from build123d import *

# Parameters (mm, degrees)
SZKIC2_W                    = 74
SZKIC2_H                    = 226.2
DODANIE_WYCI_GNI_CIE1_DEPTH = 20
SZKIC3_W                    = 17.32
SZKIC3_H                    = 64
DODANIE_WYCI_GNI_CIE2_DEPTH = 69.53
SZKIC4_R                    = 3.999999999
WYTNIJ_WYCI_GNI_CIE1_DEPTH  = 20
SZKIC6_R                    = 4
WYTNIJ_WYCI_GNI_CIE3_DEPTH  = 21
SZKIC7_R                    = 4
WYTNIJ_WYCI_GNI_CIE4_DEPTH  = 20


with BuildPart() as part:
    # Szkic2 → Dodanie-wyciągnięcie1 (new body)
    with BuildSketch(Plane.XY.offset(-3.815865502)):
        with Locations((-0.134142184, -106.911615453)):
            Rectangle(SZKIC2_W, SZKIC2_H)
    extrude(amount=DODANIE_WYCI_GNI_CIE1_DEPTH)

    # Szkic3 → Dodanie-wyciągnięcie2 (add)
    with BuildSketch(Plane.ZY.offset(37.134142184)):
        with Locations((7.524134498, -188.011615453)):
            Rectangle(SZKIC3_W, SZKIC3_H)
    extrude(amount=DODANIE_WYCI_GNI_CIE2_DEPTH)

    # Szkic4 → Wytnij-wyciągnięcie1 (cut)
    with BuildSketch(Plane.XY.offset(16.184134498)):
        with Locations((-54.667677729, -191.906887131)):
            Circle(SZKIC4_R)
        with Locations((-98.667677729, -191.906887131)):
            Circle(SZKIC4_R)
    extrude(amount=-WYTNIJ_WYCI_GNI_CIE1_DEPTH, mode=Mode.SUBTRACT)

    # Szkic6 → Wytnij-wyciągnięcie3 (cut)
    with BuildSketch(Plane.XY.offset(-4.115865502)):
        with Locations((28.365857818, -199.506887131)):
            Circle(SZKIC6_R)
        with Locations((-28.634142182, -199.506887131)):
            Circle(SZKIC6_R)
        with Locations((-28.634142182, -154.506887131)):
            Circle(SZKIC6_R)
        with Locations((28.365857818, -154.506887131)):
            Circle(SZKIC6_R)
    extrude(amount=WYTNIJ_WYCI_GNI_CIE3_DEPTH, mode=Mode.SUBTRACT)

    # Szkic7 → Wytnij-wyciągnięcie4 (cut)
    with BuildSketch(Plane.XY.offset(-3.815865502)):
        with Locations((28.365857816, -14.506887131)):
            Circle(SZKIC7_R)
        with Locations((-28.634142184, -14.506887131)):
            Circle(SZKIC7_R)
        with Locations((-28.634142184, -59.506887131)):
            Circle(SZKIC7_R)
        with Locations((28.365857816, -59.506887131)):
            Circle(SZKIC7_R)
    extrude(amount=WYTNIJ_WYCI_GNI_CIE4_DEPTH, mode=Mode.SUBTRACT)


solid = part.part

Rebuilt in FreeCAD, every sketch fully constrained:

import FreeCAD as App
import Part
import Sketcher
Q = App.Units.Quantity

doc = App.newDocument("Part")
body = doc.addObject("PartDesign::Body", "Body")

# Sketch on XY plane
sketch1 = doc.addObject("Sketcher::SketchObject", "Sketch")
body.addObject(sketch1)
sketch1.AttachmentSupport = (doc.XY_Plane, [""])
sketch1.MapMode = "FlatFace"
sketch1.AttachmentOffset = App.Placement(App.Vector(0, 0, -3.815866), App.Rotation())
sketch1.addGeometry([
    Part.LineSegment(App.Vector(-37.134142, 6.188385, 0), App.Vector(-37.134142, -220.011615, 0)),
    Part.LineSegment(App.Vector(-37.134142, -220.011615, 0), App.Vector(36.865858, -220.011615, 0)),
    Part.LineSegment(App.Vector(36.865858, -220.011615, 0), App.Vector(36.865858, 6.188385, 0)),
    Part.LineSegment(App.Vector(36.865858, 6.188385, 0), App.Vector(-37.134142, 6.188385, 0)),
], False)
sketch1.addConstraint([
    Sketcher.Constraint("Coincident", 0, 2, 1, 1),
    Sketcher.Constraint("Coincident", 1, 2, 2, 1),
    Sketcher.Constraint("Coincident", 2, 2, 3, 1),
    Sketcher.Constraint("Coincident", 3, 2, 0, 1),
    Sketcher.Constraint("Vertical", 0),
    Sketcher.Constraint("Horizontal", 1),
    Sketcher.Constraint("Vertical", 2),
    Sketcher.Constraint("Horizontal", 3),
    Sketcher.Constraint("DistanceX", 1, 1, 1, 2, Q("74 mm")),
    Sketcher.Constraint("DistanceY", 0, 2, 0, 1, Q("226.2 mm")),
    Sketcher.Constraint("DistanceX", 0, 2, -1, 1, Q("37.134142 mm")),
    Sketcher.Constraint("DistanceY", 0, 2, -1, 1, Q("220.011615 mm")),
])
pad1 = doc.addObject("PartDesign::Pad", "Pad")
body.addObject(pad1)
pad1.Profile = sketch1
pad1.Length = 20

# Sketch on YZ plane
sketch2 = doc.addObject("Sketcher::SketchObject", "Sketch001")
body.addObject(sketch2)
sketch2.AttachmentSupport = (doc.YZ_Plane, [""])
sketch2.MapMode = "FlatFace"
sketch2.AttachmentOffset = App.Placement(App.Vector(0, 0, -37.134142), App.Rotation())
sketch2.addGeometry([
    Part.LineSegment(App.Vector(-156.011615, -1.135866, 0), App.Vector(-220.011615, -1.135866, 0)),
    Part.LineSegment(App.Vector(-220.011615, -1.135866, 0), App.Vector(-220.011615, 16.184134, 0)),
    Part.LineSegment(App.Vector(-220.011615, 16.184134, 0), App.Vector(-156.011615, 16.184134, 0)),
    Part.LineSegment(App.Vector(-156.011615, 16.184134, 0), App.Vector(-156.011615, -1.135866, 0)),
], False)
sketch2.addConstraint([
    Sketcher.Constraint("Coincident", 0, 2, 1, 1),
    Sketcher.Constraint("Coincident", 1, 2, 2, 1),
    Sketcher.Constraint("Coincident", 2, 2, 3, 1),
    Sketcher.Constraint("Coincident", 3, 2, 0, 1),
    Sketcher.Constraint("Horizontal", 0),
    Sketcher.Constraint("Vertical", 1),
    Sketcher.Constraint("Horizontal", 2),
    Sketcher.Constraint("Vertical", 3),
    Sketcher.Constraint("DistanceX", 0, 2, 0, 1, Q("64 mm")),
    Sketcher.Constraint("DistanceY", 1, 1, 1, 2, Q("17.32 mm")),
    Sketcher.Constraint("DistanceX", 0, 2, -1, 1, Q("220.011615 mm")),
    Sketcher.Constraint("DistanceY", 0, 2, -1, 1, Q("1.135866 mm")),
])
pad2 = doc.addObject("PartDesign::Pad", "Pad001")
body.addObject(pad2)
pad2.Profile = sketch2
pad2.Length = 69.53
pad2.Reversed = True

# Sketch on XY plane
sketch3 = doc.addObject("Sketcher::SketchObject", "Sketch002")
body.addObject(sketch3)
sketch3.AttachmentSupport = (doc.XY_Plane, [""])
sketch3.MapMode = "FlatFace"
sketch3.AttachmentOffset = App.Placement(App.Vector(0, 0, 16.184134), App.Rotation())
sketch3.addGeometry([
    Part.Circle(App.Vector(-54.667678, -191.906887, 0), App.Vector(0, 0, 1), 4),
    Part.Circle(App.Vector(-98.667678, -191.906887, 0), App.Vector(0, 0, 1), 4),
], False)
sketch3.addConstraint([
    Sketcher.Constraint("Equal", 0, 1),
    Sketcher.Constraint("Horizontal", 0, 3, 1, 3),
    Sketcher.Constraint("Diameter", 0, Q("8 mm")),
    Sketcher.Constraint("DistanceX", 1, 3, 0, 3, Q("44 mm")),
    Sketcher.Constraint("DistanceX", 0, 3, -1, 1, Q("54.667678 mm")),
    Sketcher.Constraint("DistanceY", 0, 3, -1, 1, Q("191.906887 mm")),
])
pocket1 = doc.addObject("PartDesign::Pocket", "Pocket")
body.addObject(pocket1)
pocket1.Profile = sketch3
pocket1.Length = 20

# Sketch on XY plane
sketch4 = doc.addObject("Sketcher::SketchObject", "Sketch003")
body.addObject(sketch4)
sketch4.AttachmentSupport = (doc.XY_Plane, [""])
sketch4.MapMode = "FlatFace"
sketch4.AttachmentOffset = App.Placement(App.Vector(0, 0, -4.115866), App.Rotation())
sketch4.addGeometry([
    Part.Circle(App.Vector(28.365858, -199.506887, 0), App.Vector(0, 0, 1), 4),
    Part.Circle(App.Vector(-28.634142, -199.506887, 0), App.Vector(0, 0, 1), 4),
    Part.Circle(App.Vector(-28.634142, -154.506887, 0), App.Vector(0, 0, 1), 4),
    Part.Circle(App.Vector(28.365858, -154.506887, 0), App.Vector(0, 0, 1), 4),
], False)
sketch4.addConstraint([
    Sketcher.Constraint("Equal", 0, 1),
    Sketcher.Constraint("Equal", 1, 2),
    Sketcher.Constraint("Equal", 2, 3),
    Sketcher.Constraint("Horizontal", 0, 3, 1, 3),
    Sketcher.Constraint("Horizontal", 2, 3, 3, 3),
    Sketcher.Constraint("Vertical", 1, 3, 2, 3),
    Sketcher.Constraint("Vertical", 0, 3, 3, 3),
    Sketcher.Constraint("Diameter", 0, Q("8 mm")),
    Sketcher.Constraint("DistanceX", 1, 3, 0, 3, Q("57 mm")),
    Sketcher.Constraint("DistanceY", 1, 3, 2, 3, Q("45 mm")),
    Sketcher.Constraint("DistanceX", -1, 1, 0, 3, Q("28.365858 mm")),
    Sketcher.Constraint("DistanceY", 0, 3, -1, 1, Q("199.506887 mm")),
])
pocket2 = doc.addObject("PartDesign::Pocket", "Pocket001")
body.addObject(pocket2)
pocket2.Profile = sketch4
pocket2.Length = 21
pocket2.Reversed = True

# Sketch on XY plane
sketch5 = doc.addObject("Sketcher::SketchObject", "Sketch004")
body.addObject(sketch5)
sketch5.AttachmentSupport = (doc.XY_Plane, [""])
sketch5.MapMode = "FlatFace"
sketch5.AttachmentOffset = App.Placement(App.Vector(0, 0, -3.815866), App.Rotation())
sketch5.addGeometry([
    Part.Circle(App.Vector(28.365858, -14.506887, 0), App.Vector(0, 0, 1), 4),
    Part.Circle(App.Vector(-28.634142, -14.506887, 0), App.Vector(0, 0, 1), 4),
    Part.Circle(App.Vector(-28.634142, -59.506887, 0), App.Vector(0, 0, 1), 4),
    Part.Circle(App.Vector(28.365858, -59.506887, 0), App.Vector(0, 0, 1), 4),
], False)
sketch5.addConstraint([
    Sketcher.Constraint("Equal", 0, 1),
    Sketcher.Constraint("Equal", 1, 2),
    Sketcher.Constraint("Equal", 2, 3),
    Sketcher.Constraint("Horizontal", 0, 3, 1, 3),
    Sketcher.Constraint("Horizontal", 2, 3, 3, 3),
    Sketcher.Constraint("Vertical", 1, 3, 2, 3),
    Sketcher.Constraint("Vertical", 0, 3, 3, 3),
    Sketcher.Constraint("Diameter", 0, Q("8 mm")),
    Sketcher.Constraint("DistanceX", 1, 3, 0, 3, Q("57 mm")),
    Sketcher.Constraint("DistanceY", 2, 3, 1, 3, Q("45 mm")),
    Sketcher.Constraint("DistanceX", -1, 1, 0, 3, Q("28.365858 mm")),
    Sketcher.Constraint("DistanceY", 0, 3, -1, 1, Q("14.506887 mm")),
])
pocket3 = doc.addObject("PartDesign::Pocket", "Pocket002")
body.addObject(pocket3)
pocket3.Profile = sketch5
pocket3.Length = 20
pocket3.Reversed = True

doc.recompute()
